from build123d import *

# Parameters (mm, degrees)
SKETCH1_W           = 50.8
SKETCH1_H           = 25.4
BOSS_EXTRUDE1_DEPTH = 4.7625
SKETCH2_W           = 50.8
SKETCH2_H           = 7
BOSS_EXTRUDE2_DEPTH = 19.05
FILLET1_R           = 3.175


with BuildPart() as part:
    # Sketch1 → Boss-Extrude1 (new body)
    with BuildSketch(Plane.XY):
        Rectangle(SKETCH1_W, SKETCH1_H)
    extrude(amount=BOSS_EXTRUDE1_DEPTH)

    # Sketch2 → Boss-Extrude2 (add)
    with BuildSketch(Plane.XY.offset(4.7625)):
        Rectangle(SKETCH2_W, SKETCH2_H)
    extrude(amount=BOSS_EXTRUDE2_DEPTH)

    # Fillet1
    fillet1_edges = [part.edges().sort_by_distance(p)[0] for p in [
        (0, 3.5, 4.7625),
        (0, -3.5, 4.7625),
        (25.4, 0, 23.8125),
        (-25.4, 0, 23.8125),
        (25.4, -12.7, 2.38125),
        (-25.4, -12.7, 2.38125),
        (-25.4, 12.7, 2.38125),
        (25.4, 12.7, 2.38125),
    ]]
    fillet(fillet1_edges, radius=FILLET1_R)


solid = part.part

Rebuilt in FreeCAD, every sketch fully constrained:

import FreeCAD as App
import Part
import Sketcher

V = App.Vector
Q = App.Units.Quantity


def edges_at(feature, points):
    """Names of the edges that pass closest to the given points."""
    edges = feature.Shape.Edges
    near = lambda p: min(range(len(edges)), key=lambda i: edges[i].distToShape(Part.Vertex(*p))[0])
    return sorted({f"Edge{near(p) + 1}" for p in points})


def add_polygon(sketch, points):
    """Adds a closed chain of lines whose ends are joined by coincident constraints."""
    first, n = sketch.GeometryCount, len(points)
    for a, b in zip(points, points[1:] + points[:1]):
        sketch.addGeometry(Part.LineSegment(App.Vector(*a, 0), App.Vector(*b, 0)), False)
    for i in range(n):
        sketch.addConstraint(Sketcher.Constraint("Coincident", first + i, 2, first + (i + 1) % n, 1))

doc = App.newDocument("Part")
body = doc.addObject("PartDesign::Body", "Body")

# Sketch on XY plane
sketch1 = doc.addObject("Sketcher::SketchObject", "Sketch")
body.addObject(sketch1)
sketch1.AttachmentSupport = (doc.XY_Plane, [""])
sketch1.MapMode = "FlatFace"
add_polygon(sketch1, [(-25, 13), (-25, -13), (25, -13), (25, 13)])  # lines 0-3
sketch1.addConstraint([
    Sketcher.Constraint("Vertical", 0),
    Sketcher.Constraint("Horizontal", 1),
    Sketcher.Constraint("Vertical", 2),
    Sketcher.Constraint("Horizontal", 3),
    Sketcher.Constraint("Symmetric", 0, 2, 2, 2, -1, 1),
    Sketcher.Constraint("DistanceX", 1, 1, 1, 2, Q("2 in")),
    Sketcher.Constraint("DistanceY", 0, 2, 0, 1, Q("1 in")),
])
pad1 = doc.addObject("PartDesign::Pad", "Pad")
body.addObject(pad1)
pad1.Profile = sketch1
pad1.Length = Q("0.1875 in")

# Sketch on XY plane
sketch2 = doc.addObject("Sketcher::SketchObject", "Sketch001")
body.addObject(sketch2)
sketch2.AttachmentSupport = (doc.XY_Plane, [""])
sketch2.MapMode = "FlatFace"
sketch2.AttachmentOffset = App.Placement(V(0, 0, 0.1875 * 25.4), App.Rotation())
add_polygon(sketch2, [(-25, 4), (-25, -4), (25, -4), (25, 4)])  # lines 0-3
sketch2.addConstraint([
    Sketcher.Constraint("Vertical", 0),
    Sketcher.Constraint("Horizontal", 1),
    Sketcher.Constraint("Vertical", 2),
    Sketcher.Constraint("Horizontal", 3),
    Sketcher.Constraint("Symmetric", 0, 2, 2, 2, -1, 1),
    Sketcher.Constraint("DistanceX", 1, 1, 1, 2, Q("2 in")),
    Sketcher.Constraint("DistanceY", 0, 2, 0, 1, Q("7 mm")),
])
pad2 = doc.addObject("PartDesign::Pad", "Pad001")
body.addObject(pad2)
pad2.Profile = sketch2
pad2.Length = Q("0.75 in")
doc.recompute()

fillet = doc.addObject("PartDesign::Fillet", "Fillet")
body.addObject(fillet)
fillet.Base = (pad2, edges_at(pad2, [
    (0, 3.5, 4.763),
    (0, -3.5, 4.763),
    (25.4, 0, 23.812),
    (-25.4, 0, 23.812),
    (25.4, -12.7, 2.381),
    (-25.4, -12.7, 2.381),
    (-25.4, 12.7, 2.381),
    (25.4, 12.7, 2.381),
]))
fillet.Radius = Q("0.125 in")

doc.recompute()
